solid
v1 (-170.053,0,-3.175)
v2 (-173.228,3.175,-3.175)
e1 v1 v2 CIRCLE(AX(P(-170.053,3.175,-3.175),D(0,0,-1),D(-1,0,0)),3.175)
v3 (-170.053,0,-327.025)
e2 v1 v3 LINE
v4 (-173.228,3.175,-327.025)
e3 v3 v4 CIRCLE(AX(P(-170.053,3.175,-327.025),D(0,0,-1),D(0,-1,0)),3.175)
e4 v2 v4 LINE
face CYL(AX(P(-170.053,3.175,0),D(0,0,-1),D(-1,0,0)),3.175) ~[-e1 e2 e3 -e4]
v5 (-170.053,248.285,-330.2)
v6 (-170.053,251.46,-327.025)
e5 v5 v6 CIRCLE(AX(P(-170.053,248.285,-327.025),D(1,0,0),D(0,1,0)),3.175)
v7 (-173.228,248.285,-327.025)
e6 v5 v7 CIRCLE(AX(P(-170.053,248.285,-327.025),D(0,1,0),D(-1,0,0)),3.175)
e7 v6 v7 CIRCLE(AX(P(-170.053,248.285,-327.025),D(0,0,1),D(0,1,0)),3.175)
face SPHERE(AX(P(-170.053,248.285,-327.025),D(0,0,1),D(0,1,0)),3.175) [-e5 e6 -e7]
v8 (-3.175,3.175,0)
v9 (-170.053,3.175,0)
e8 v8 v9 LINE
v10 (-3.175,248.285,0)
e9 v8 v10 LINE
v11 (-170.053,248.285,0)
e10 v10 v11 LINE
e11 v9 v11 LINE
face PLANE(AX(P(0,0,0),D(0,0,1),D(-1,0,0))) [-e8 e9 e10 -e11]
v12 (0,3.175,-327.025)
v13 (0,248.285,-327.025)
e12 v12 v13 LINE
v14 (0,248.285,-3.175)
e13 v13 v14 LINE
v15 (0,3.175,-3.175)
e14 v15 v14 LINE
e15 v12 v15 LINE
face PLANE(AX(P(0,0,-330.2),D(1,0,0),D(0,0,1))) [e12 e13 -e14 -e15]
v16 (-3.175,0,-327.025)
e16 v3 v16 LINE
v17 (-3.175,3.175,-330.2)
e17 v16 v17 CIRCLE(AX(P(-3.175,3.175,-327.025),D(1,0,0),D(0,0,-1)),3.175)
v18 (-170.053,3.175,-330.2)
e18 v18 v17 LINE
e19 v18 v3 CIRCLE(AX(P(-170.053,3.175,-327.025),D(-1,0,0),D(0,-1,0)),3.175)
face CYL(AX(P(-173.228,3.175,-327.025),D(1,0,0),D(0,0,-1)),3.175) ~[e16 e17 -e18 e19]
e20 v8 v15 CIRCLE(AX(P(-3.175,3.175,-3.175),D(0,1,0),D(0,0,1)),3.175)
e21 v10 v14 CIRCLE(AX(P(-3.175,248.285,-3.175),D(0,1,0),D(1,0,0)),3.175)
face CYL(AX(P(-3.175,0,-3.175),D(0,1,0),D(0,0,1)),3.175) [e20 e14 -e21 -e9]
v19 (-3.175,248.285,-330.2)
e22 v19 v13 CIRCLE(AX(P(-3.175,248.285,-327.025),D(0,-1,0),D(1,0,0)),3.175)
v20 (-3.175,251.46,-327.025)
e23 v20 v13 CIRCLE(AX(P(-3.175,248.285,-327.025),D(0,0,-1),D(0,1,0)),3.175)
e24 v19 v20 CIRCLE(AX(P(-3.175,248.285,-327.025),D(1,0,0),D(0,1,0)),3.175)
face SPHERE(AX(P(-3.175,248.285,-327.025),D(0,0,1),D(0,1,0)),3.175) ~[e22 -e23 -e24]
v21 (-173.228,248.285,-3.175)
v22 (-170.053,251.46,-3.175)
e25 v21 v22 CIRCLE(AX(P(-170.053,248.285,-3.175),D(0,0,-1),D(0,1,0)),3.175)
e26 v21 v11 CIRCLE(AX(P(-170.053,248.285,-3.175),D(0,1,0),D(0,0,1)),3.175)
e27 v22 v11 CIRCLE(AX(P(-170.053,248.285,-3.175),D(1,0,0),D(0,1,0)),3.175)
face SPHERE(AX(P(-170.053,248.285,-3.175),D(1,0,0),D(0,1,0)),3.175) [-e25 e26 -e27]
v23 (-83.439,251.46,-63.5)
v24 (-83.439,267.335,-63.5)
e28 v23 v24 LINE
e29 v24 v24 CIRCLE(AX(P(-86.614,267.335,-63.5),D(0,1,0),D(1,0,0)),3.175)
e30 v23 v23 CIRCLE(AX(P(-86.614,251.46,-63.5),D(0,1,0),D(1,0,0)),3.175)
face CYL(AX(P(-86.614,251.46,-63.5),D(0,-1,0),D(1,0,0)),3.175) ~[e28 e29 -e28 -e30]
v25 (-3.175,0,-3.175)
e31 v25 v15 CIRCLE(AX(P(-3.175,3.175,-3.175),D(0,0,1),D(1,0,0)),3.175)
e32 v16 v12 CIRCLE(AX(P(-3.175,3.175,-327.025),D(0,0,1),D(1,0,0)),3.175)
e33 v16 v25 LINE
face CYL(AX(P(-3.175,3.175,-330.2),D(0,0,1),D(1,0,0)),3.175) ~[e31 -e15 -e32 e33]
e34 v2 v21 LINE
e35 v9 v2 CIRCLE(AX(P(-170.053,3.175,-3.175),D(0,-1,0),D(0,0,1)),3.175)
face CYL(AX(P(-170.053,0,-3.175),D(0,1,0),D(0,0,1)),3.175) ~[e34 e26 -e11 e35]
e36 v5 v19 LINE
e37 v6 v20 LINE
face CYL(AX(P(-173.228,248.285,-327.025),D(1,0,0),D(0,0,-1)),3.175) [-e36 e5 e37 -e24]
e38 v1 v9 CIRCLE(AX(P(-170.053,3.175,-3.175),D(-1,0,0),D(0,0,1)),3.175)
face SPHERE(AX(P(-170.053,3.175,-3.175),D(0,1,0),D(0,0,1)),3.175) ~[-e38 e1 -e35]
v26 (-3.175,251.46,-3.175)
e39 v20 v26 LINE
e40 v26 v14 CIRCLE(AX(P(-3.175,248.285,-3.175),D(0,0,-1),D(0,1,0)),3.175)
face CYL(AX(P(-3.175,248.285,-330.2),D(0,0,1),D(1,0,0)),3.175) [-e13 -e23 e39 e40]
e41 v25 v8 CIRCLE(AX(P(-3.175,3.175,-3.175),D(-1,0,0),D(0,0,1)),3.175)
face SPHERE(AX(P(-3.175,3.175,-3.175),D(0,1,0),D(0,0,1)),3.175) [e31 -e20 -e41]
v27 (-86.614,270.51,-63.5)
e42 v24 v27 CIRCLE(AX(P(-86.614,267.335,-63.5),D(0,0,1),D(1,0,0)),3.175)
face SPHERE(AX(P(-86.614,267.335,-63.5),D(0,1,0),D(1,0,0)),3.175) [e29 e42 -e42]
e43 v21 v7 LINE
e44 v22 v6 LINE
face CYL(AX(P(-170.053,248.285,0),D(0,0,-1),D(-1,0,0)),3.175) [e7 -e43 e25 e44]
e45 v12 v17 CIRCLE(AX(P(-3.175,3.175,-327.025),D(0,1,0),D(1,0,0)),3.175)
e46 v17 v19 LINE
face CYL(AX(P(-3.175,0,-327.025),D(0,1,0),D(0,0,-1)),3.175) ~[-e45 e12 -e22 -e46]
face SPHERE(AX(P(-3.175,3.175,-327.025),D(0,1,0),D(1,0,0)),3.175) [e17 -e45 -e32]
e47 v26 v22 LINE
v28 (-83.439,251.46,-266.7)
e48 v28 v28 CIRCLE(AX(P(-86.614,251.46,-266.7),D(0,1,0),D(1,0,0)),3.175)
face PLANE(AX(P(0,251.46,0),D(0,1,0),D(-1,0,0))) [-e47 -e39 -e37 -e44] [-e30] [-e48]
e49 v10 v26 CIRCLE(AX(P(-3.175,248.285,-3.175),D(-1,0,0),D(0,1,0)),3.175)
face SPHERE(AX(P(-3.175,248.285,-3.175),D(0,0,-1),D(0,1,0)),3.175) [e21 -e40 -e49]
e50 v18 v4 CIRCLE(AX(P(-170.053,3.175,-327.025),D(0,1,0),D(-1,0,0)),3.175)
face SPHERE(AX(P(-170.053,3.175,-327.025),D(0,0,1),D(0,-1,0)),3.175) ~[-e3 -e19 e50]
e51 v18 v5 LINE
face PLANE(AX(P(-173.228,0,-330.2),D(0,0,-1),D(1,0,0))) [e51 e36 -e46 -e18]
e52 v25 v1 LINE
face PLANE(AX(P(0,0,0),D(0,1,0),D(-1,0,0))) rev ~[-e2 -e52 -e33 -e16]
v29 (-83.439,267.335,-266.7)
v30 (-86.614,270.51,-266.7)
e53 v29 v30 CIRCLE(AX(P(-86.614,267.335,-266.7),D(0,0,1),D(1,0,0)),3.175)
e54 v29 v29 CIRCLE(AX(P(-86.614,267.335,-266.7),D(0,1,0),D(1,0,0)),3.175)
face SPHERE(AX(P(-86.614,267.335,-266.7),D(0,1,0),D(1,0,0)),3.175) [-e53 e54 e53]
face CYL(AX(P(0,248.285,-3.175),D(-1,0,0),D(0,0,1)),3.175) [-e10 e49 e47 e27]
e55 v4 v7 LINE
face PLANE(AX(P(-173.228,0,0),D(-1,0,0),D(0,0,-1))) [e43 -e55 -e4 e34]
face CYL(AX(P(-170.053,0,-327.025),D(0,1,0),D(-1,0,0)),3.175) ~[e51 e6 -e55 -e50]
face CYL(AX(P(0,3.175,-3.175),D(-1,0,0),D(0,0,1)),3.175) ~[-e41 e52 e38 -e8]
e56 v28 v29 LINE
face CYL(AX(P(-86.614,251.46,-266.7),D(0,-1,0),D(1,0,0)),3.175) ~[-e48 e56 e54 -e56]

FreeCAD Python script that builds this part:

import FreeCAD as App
import Part
import Sketcher
Q = App.Units.Quantity


def edges_at(feature, points):
    """Names of the edges that pass closest to the given points."""
    edges = feature.Shape.Edges
    near = lambda p: min(range(len(edges)), key=lambda i: edges[i].distToShape(Part.Vertex(*p))[0])
    return sorted({f"Edge{near(p) + 1}" for p in points})


def add_polygon(sketch, points):
    """Adds a closed chain of lines whose ends are joined by coincident constraints."""
    first, n = sketch.GeometryCount, len(points)
    for a, b in zip(points, points[1:] + points[:1]):
        sketch.addGeometry(Part.LineSegment(App.Vector(*a, 0), App.Vector(*b, 0)), False)
    for i in range(n):
        sketch.addConstraint(Sketcher.Constraint("Coincident", first + i, 2, first + (i + 1) % n, 1))

doc = App.newDocument("Part")
params = doc.addObject("Spreadsheet::Sheet", "Params")
for row, (alias, value) in enumerate([
    ("sketch1_height", "13 in"),
    ("sketch1_width", "6.82 in"),
    ("pad1_length", "9.9 in"),
    ("fillet_radius", "0.125 in"),
    ("sketch2_diameter", "0.25 in"),
    ("pad2_length", "0.75 in"),
    ("fillet2_radius", "0.125 in"),
], start=1):
    params.set(f"A{row}", alias)
    params.set(f"B{row}", "=" + value)
    params.setAlias(f"B{row}", alias)

body = doc.addObject("PartDesign::Body", "Body")

sketch1 = body.newObject("Sketcher::SketchObject", "Sketch")
sketch1.AttachmentSupport = (doc.getObject("XZ_Plane"), [""])
sketch1.MapMode = "FlatFace"
add_polygon(sketch1, [(-173.228, 0), (0, 0), (0, -330.2), (-173.228, -330.2)])
sketch1.addConstraint(Sketcher.Constraint("Horizontal", 0))
sketch1.addConstraint(Sketcher.Constraint("Vertical", 1))
sketch1.addConstraint(Sketcher.Constraint("Horizontal", 2))
sketch1.addConstraint(Sketcher.Constraint("Vertical", 3))
sketch1.addConstraint(Sketcher.Constraint("Coincident", 0, 2, -1, 1))
sketch1.addConstraint(Sketcher.Constraint("DistanceY", 1, 2, 1, 1, Q("13 in")))
sketch1.addConstraint(Sketcher.Constraint("DistanceX", 0, 1, 0, 2, Q("6.82 in")))
sketch1.setExpression("Constraints[9]", "Params.sketch1_height")
sketch1.setExpression("Constraints[10]", "Params.sketch1_width")
pad1 = body.newObject("PartDesign::Pad", "Pad")
pad1.Profile = sketch1
pad1.setExpression("Length", "Params.pad1_length")
pad1.Reversed = True
doc.recompute()

fillet = body.newObject("PartDesign::Fillet", "Fillet")
fillet.Base = (pad1, ["Edge1"])
fillet.UseAllEdges = True
fillet.setExpression("Radius", "Params.fillet_radius")

sketch2 = body.newObject("Sketcher::SketchObject", "Sketch001")
sketch2.AttachmentSupport = (doc.getObject("XZ_Plane"), [""])
sketch2.MapMode = "FlatFace"
sketch2.AttachmentOffset = App.Placement(App.Vector(0, 0, -9.9 * 25.4), App.Rotation())
sketch2.addGeometry(Part.Circle(App.Vector(-86.614, -63.5, 0), App.Vector(0, 0, 1), 3.175), False)
sketch2.addGeometry(Part.Circle(App.Vector(-86.614, -266.7, 0), App.Vector(0, 0, 1), 3.175), False)
sketch2.addConstraint(Sketcher.Constraint("Equal", 0, 1))
sketch2.addConstraint(Sketcher.Constraint("Vertical", 0, 3, 1, 3))
sketch2.addConstraint(Sketcher.Constraint("Diameter", 0, Q("0.25 in")))
sketch2.addConstraint(Sketcher.Constraint("DistanceY", 0, 3, -1, 1, Q("2.5 in")))
sketch2.addConstraint(Sketcher.Constraint("DistanceX", 0, 3, -1, 1, Q("3.41 in")))
sketch2.addConstraint(Sketcher.Constraint("DistanceY", 1, 3, 0, 3, Q("8 in")))
sketch2.setExpression("Constraints[2]", "Params.sketch2_diameter")
pad2 = body.newObject("PartDesign::Pad", "Pad001")
pad2.Profile = sketch2
pad2.setExpression("Length", "Params.pad2_length")
pad2.Reversed = True
doc.recompute()

fillet2 = body.newObject("PartDesign::Fillet", "Fillet001")
fillet2.Base = (pad2, edges_at(pad2, [(-89.789, 270.51, -63.5), (-89.789, 270.51, -266.7)]))
fillet2.setExpression("Radius", "Params.fillet2_radius")

doc.recompute()
